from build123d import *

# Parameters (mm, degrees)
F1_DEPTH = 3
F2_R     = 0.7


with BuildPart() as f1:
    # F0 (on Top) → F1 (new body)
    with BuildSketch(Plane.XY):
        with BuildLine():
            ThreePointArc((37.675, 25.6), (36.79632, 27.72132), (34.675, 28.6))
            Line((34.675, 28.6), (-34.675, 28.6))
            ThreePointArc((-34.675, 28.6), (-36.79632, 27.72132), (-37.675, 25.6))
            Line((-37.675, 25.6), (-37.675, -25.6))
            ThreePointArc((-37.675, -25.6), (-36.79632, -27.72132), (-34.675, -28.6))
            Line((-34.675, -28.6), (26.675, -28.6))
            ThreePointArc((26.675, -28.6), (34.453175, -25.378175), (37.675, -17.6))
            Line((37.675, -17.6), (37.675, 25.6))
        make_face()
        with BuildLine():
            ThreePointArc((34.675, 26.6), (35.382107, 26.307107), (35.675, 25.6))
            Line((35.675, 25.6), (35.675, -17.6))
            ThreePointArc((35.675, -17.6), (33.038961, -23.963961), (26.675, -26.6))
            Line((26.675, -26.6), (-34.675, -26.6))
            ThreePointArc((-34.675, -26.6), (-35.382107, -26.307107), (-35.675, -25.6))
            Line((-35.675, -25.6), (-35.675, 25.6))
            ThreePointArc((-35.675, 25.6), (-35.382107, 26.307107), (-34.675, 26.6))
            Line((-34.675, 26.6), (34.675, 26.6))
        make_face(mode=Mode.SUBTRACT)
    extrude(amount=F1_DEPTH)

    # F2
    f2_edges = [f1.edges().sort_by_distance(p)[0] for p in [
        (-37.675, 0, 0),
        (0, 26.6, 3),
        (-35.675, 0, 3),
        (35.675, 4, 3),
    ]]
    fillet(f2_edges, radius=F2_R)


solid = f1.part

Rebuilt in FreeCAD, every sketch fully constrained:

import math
import FreeCAD as App
import Part
import Sketcher
Q = App.Units.Quantity


def edges_at(feature, points):
    """Names of the edges that pass closest to the given points."""
    edges = feature.Shape.Edges
    near = lambda p: min(range(len(edges)), key=lambda i: edges[i].distToShape(Part.Vertex(*p))[0])
    return sorted({f"Edge{near(p) + 1}" for p in points})

doc = App.newDocument("Part")
body = doc.addObject("PartDesign::Body", "Body")

sketch1 = doc.addObject("Sketcher::SketchObject", "Sketch")
body.addObject(sketch1)
sketch1.AttachmentSupport = (doc.XY_Plane, [""])
sketch1.MapMode = "FlatFace"
sketch1.addGeometry(Part.ArcOfCircle(Part.Circle(App.Vector(34.7, 25.6, 0), App.Vector(0, 0, 1), 3), math.radians(0), math.radians(90)), False)
sketch1.addGeometry(Part.LineSegment(App.Vector(34.7, 28.6, 0), App.Vector(-34.7, 28.6, 0)), False)
sketch1.addGeometry(Part.ArcOfCircle(Part.Circle(App.Vector(-34.7, 25.6, 0), App.Vector(0, 0, 1), 3), math.radians(90), math.radians(180)), False)
sketch1.addGeometry(Part.LineSegment(App.Vector(-37.7, 25.6, 0), App.Vector(-37.7, -25.6, 0)), False)
sketch1.addGeometry(Part.ArcOfCircle(Part.Circle(App.Vector(-34.7, -25.6, 0), App.Vector(0, 0, 1), 3), math.radians(-180), math.radians(-90)), False)
sketch1.addGeometry(Part.LineSegment(App.Vector(-34.7, -28.6, 0), App.Vector(26.7, -28.6, 0)), False)
sketch1.addGeometry(Part.ArcOfCircle(Part.Circle(App.Vector(26.7, -17.6, 0), App.Vector(0, 0, 1), 11), math.radians(-90), math.radians(0)), False)
sketch1.addGeometry(Part.LineSegment(App.Vector(37.7, -17.6, 0), App.Vector(37.7, 25.6, 0)), False)
sketch1.addGeometry(Part.LineSegment(App.Vector(-34.7, 26.6, 0), App.Vector(34.7, 26.6, 0)), False)
sketch1.addGeometry(Part.ArcOfCircle(Part.Circle(App.Vector(34.7, 25.6, 0), App.Vector(0, 0, 1), 1), math.radians(0), math.radians(90)), False)
sketch1.addGeometry(Part.LineSegment(App.Vector(35.7, 25.6, 0), App.Vector(35.7, -17.6, 0)), False)
sketch1.addGeometry(Part.ArcOfCircle(Part.Circle(App.Vector(26.7, -17.6, 0), App.Vector(0, 0, 1), 9), math.radians(-90), math.radians(0)), False)
sketch1.addGeometry(Part.LineSegment(App.Vector(26.7, -26.6, 0), App.Vector(-34.7, -26.6, 0)), False)
sketch1.addGeometry(Part.ArcOfCircle(Part.Circle(App.Vector(-34.7, -25.6, 0), App.Vector(0, 0, 1), 1), math.radians(180), math.radians(270)), False)
sketch1.addGeometry(Part.LineSegment(App.Vector(-35.7, -25.6, 0), App.Vector(-35.7, 25.6, 0)), False)
sketch1.addGeometry(Part.ArcOfCircle(Part.Circle(App.Vector(-34.7, 25.6, 0), App.Vector(0, 0, 1), 1), math.radians(90), math.radians(180)), False)
sketch1.addConstraint(Sketcher.Constraint("Tangent", 0, 2, 1, 1))
sketch1.addConstraint(Sketcher.Constraint("Tangent", 1, 2, 2, 1))
sketch1.addConstraint(Sketcher.Constraint("Tangent", 2, 2, 3, 1))
sketch1.addConstraint(Sketcher.Constraint("Tangent", 3, 2, 4, 1))
sketch1.addConstraint(Sketcher.Constraint("Tangent", 4, 2, 5, 1))
sketch1.addConstraint(Sketcher.Constraint("Tangent", 5, 2, 6, 1))
sketch1.addConstraint(Sketcher.Constraint("Tangent", 6, 2, 7, 1))
sketch1.addConstraint(Sketcher.Constraint("Tangent", 7, 2, 0, 1))
sketch1.addConstraint(Sketcher.Constraint("Tangent", 8, 2, 9, 2))
sketch1.addConstraint(Sketcher.Constraint("Tangent", 9, 1, 10, 1))
sketch1.addConstraint(Sketcher.Constraint("Tangent", 10, 2, 11, 2))
sketch1.addConstraint(Sketcher.Constraint("Tangent", 11, 1, 12, 1))
sketch1.addConstraint(Sketcher.Constraint("Tangent", 12, 2, 13, 2))
sketch1.addConstraint(Sketcher.Constraint("Tangent", 13, 1, 14, 1))
sketch1.addConstraint(Sketcher.Constraint("Tangent", 14, 2, 15, 2))
sketch1.addConstraint(Sketcher.Constraint("Tangent", 15, 1, 8, 1))
sketch1.addConstraint(Sketcher.Constraint("Horizontal", 1))
sketch1.addConstraint(Sketcher.Constraint("Vertical", 3))
sketch1.addConstraint(Sketcher.Constraint("Horizontal", 5))
sketch1.addConstraint(Sketcher.Constraint("Vertical", 7))
sketch1.addConstraint(Sketcher.Constraint("Horizontal", 8))
sketch1.addConstraint(Sketcher.Constraint("Vertical", 10))
sketch1.addConstraint(Sketcher.Constraint("Horizontal", 12))
sketch1.addConstraint(Sketcher.Constraint("Vertical", 14))
sketch1.addConstraint(Sketcher.Constraint("Coincident", 9, 3, 0, 3))
sketch1.addConstraint(Sketcher.Constraint("Coincident", 11, 3, 6, 3))
sketch1.addConstraint(Sketcher.Constraint("Coincident", 13, 3, 4, 3))
sketch1.addConstraint(Sketcher.Constraint("Equal", 0, 2))
sketch1.addConstraint(Sketcher.Constraint("Equal", 2, 4))
sketch1.addConstraint(Sketcher.Constraint("Equal", 13, 15))
sketch1.addConstraint(Sketcher.Constraint("Symmetric", 0, 3, 4, 3, -1, 1))
sketch1.addConstraint(Sketcher.Constraint("Radius", 0, Q("3.000001 mm")))
sketch1.addConstraint(Sketcher.Constraint("Radius", 6, Q("10.999999 mm")))
sketch1.addConstraint(Sketcher.Constraint("Radius", 9, Q("0.999999 mm")))
sketch1.addConstraint(Sketcher.Constraint("DistanceY", 3, 2, 3, 1, Q("51.2 mm")))
sketch1.addConstraint(Sketcher.Constraint("DistanceX", 1, 2, 1, 1, Q("69.35 mm")))
pad1 = doc.addObject("PartDesign::Pad", "Pad")
body.addObject(pad1)
pad1.Profile = sketch1
pad1.Length = 3
doc.recompute()

fillet = doc.addObject("PartDesign::Fillet", "Fillet")
body.addObject(fillet)
fillet.Base = (pad1, edges_at(pad1, [
    (-37.675, 0, 0),
    (0, 26.6, 3),
    (-35.675, 0, 3),
    (35.675, 4, 3),
]))
fillet.Radius = 0.7

doc.recompute()
